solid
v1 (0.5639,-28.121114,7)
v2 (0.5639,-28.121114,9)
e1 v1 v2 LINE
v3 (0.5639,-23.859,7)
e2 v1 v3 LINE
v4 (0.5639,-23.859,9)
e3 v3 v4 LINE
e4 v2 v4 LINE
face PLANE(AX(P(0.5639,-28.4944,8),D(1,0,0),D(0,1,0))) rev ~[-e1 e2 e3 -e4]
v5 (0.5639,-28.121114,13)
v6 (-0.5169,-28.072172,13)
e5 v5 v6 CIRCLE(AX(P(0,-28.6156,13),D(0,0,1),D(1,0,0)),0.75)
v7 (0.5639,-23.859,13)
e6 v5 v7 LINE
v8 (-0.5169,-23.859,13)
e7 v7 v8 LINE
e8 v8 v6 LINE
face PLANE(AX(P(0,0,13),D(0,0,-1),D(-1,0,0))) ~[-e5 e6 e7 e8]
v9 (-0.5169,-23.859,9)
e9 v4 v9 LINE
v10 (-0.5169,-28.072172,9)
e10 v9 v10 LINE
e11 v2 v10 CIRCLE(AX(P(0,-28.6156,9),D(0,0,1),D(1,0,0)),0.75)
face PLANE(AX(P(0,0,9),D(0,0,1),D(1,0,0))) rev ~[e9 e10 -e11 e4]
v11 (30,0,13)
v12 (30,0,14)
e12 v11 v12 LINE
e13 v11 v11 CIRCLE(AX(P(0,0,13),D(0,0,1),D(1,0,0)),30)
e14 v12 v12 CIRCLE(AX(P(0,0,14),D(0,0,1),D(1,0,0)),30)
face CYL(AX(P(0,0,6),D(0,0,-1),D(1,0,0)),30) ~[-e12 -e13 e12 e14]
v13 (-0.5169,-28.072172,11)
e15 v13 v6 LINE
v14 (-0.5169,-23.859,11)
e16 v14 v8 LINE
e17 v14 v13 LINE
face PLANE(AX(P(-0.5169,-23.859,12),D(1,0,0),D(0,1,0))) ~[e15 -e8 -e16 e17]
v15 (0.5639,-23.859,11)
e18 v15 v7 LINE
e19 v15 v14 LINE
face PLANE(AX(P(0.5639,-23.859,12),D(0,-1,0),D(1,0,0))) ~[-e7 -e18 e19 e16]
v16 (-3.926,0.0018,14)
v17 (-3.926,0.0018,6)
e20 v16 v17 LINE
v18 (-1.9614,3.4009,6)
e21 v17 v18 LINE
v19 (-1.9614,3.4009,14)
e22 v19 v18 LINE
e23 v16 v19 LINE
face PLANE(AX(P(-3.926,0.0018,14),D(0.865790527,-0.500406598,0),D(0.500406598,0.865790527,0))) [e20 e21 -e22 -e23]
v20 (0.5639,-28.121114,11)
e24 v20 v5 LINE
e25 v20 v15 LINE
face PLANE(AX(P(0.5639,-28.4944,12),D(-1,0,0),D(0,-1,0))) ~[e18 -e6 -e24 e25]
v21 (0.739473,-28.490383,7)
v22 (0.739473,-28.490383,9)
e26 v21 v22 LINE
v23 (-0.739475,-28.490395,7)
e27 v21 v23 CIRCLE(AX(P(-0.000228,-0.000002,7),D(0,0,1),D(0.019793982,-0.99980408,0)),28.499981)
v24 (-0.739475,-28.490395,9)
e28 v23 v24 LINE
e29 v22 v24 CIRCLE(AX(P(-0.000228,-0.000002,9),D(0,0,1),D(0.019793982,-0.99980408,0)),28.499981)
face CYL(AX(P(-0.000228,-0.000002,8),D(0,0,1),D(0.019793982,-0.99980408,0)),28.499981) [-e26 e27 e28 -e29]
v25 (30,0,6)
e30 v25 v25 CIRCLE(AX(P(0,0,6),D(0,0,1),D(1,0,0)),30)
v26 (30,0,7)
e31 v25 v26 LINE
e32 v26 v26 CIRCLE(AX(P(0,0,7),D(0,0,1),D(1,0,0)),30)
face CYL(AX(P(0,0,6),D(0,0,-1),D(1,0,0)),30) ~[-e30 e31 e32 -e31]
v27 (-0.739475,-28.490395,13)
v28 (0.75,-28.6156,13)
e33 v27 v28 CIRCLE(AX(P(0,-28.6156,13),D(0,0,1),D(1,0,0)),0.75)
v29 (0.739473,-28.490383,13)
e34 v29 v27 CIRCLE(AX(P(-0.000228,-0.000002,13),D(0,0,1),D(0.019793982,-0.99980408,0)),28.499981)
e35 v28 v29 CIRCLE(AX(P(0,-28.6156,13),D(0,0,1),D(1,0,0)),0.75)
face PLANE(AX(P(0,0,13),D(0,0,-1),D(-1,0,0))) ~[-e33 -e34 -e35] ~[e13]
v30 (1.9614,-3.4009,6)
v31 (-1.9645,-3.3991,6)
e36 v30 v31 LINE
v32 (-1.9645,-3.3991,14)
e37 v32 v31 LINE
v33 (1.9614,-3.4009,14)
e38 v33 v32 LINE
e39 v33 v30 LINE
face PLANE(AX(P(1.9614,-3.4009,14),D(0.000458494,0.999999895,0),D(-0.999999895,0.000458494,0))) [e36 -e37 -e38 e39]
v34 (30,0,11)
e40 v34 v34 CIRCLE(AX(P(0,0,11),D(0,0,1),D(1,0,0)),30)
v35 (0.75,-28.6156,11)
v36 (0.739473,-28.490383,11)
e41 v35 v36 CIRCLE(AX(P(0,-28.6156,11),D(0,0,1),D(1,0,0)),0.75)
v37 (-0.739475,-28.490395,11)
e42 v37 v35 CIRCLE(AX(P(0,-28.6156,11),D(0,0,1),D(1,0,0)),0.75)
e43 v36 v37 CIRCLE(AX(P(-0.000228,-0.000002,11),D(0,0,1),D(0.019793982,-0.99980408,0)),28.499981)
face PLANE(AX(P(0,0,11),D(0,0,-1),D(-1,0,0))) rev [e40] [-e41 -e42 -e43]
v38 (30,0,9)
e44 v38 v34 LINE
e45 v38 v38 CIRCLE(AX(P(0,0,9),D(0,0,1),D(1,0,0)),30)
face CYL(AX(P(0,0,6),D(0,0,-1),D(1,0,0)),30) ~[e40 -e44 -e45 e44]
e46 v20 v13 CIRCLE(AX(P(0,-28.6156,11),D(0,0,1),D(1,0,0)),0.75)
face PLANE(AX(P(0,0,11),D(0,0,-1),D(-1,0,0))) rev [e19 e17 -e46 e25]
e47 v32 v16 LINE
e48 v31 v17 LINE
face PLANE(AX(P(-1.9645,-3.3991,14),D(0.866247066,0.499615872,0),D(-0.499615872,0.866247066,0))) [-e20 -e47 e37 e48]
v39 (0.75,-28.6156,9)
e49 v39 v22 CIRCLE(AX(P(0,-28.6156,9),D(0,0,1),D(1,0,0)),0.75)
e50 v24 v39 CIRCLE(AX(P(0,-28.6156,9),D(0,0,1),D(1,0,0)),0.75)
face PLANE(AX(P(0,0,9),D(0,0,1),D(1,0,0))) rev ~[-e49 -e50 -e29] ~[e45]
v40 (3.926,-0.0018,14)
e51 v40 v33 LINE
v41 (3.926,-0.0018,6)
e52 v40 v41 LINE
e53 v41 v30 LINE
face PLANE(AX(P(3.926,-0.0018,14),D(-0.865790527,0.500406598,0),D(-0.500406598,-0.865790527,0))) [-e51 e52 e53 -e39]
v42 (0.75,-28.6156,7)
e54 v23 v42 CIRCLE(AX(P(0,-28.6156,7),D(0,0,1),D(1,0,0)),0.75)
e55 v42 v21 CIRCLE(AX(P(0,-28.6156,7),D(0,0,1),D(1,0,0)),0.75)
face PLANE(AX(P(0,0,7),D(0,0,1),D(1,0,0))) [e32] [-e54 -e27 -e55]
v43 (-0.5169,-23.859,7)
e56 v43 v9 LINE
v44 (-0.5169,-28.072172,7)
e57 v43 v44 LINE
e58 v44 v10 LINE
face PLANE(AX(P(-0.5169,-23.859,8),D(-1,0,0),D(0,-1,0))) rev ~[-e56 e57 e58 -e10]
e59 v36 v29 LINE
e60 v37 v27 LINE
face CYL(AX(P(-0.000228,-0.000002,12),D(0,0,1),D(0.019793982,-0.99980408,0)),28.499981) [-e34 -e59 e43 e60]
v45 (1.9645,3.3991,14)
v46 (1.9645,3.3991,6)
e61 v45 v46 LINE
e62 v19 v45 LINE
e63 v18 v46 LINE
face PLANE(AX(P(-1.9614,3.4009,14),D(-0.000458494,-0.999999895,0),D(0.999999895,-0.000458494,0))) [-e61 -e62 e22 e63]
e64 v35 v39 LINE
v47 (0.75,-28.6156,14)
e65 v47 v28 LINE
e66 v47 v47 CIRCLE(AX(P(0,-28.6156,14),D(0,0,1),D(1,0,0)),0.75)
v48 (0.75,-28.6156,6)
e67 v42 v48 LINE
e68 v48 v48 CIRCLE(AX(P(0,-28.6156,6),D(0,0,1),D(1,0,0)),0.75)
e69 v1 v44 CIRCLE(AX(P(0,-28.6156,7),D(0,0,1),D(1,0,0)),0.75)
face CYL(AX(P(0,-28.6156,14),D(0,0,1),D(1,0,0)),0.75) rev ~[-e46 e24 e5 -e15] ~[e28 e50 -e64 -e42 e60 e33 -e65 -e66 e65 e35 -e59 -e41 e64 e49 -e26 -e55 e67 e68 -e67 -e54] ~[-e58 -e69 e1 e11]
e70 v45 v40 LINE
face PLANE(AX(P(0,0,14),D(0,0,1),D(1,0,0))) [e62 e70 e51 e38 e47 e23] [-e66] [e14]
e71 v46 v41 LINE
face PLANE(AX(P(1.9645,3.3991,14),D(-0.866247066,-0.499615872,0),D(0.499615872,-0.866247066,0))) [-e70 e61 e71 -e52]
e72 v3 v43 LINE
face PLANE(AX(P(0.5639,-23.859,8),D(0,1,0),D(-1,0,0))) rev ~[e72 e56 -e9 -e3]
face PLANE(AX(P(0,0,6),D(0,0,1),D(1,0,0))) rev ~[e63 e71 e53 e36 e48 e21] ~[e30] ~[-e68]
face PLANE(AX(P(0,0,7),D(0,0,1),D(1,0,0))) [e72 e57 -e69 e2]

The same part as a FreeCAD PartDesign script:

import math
import FreeCAD as App
import Part
import Sketcher

V = App.Vector

doc = App.newDocument("Part")
body = doc.addObject("PartDesign::Body", "Body")

# Sketch on XY plane
sketch1 = body.newObject("Sketcher::SketchObject", "Sketch")
sketch1.AttachmentSupport = (doc.getObject("XY_Plane"), [""])
sketch1.MapMode = "FlatFace"
sketch1.addGeometry(Part.Circle(V(0, 0, 0), V(0, 0, 1), 4.5), False)
sketch1.addConstraint([
    Sketcher.Constraint("Coincident", 0, 3, -1, 1),
    Sketcher.Constraint("Diameter", 0, 8.9),
])
pad1 = body.newObject("PartDesign::Pad", "Pad")
pad1.Profile = sketch1
pad1.Length = 6

# Sketch on XY plane
sketch2 = body.newObject("Sketcher::SketchObject", "Sketch001")
sketch2.AttachmentSupport = (doc.getObject("XY_Plane"), [""])
sketch2.MapMode = "FlatFace"
sketch2.AttachmentOffset = App.Placement(V(0, 0, 6), App.Rotation())
sketch2.addGeometry(Part.Circle(V(0, 0, 0), V(0, 0, 1), 30), False)
sketch2.addConstraint([
    Sketcher.Constraint("Coincident", 0, 3, -1, 1),
    Sketcher.Constraint("Diameter", 0, 60.0),
])
pad2 = body.newObject("PartDesign::Pad", "Pad001")
pad2.Profile = sketch2
pad2.Length = 8

# Sketch on XY plane
sketch3 = body.newObject("Sketcher::SketchObject", "Sketch002")
sketch3.AttachmentSupport = (doc.getObject("XY_Plane"), [""])
sketch3.MapMode = "FlatFace"
sketch3.AttachmentOffset = App.Placement(V(0, 0, 8), App.Rotation())
sketch3.addGeometry([
    Part.Circle(V(0, 0, 0), V(0, 0, 1), 30),  # 0
    Part.ArcOfCircle(Part.Circle(V(0, 0, 0), V(0, 0, 1), 28.5), math.radians(-89), math.radians(269)),  # 1
    Part.LineSegment(V(0.6, -28.5, 0), V(0.6, -23.9, 0)),  # 2
    Part.LineSegment(V(0.6, -23.9, 0), V(-0.5, -23.9, 0)),  # 3
    Part.LineSegment(V(-0.5, -23.9, 0), V(-0.5, -28.5, 0)),  # 4
], False)
sketch3.addConstraint([
    Sketcher.Constraint("Coincident", 1, 1, 2, 1),
    Sketcher.Constraint("Coincident", 2, 2, 3, 1),
    Sketcher.Constraint("Coincident", 3, 2, 4, 1),
    Sketcher.Constraint("Coincident", 4, 2, 1, 2),
    Sketcher.Constraint("Vertical", 2),
    Sketcher.Constraint("Horizontal", 3),
    Sketcher.Constraint("Vertical", 4),
    Sketcher.Constraint("Coincident", 0, 3, -1, 1),
    Sketcher.Constraint("Coincident", 1, 3, -1, 1),
    Sketcher.Constraint("Diameter", 0, 60.0),
    Sketcher.Constraint("Radius", 1, 28.5),
    Sketcher.Constraint("DistanceX", 3, 2, 3, 1, 1.0808),
    Sketcher.Constraint("DistanceY", 2, 1, 2, 2, 4.6354),
    Sketcher.Constraint("DistanceY", 4, 2, 4, 1, 4.6363),
])
pocket1 = body.newObject("PartDesign::Pocket", "Pocket")
pocket1.Profile = sketch3
pocket1.Length = 2
pocket1.Midplane = True
doc.recompute()

datumplane = body.newObject("PartDesign::Plane", "DatumPlane")
datumplane.AttachmentSupport = (doc.getObject("XY_Plane"), [""])
datumplane.MapMode = "FlatFace"
datumplane.AttachmentOffset = App.Placement(V(0, 0, 10), App.Rotation())
mirrored = body.newObject("PartDesign::Mirrored", "Mirrored")
mirrored.Originals = [pocket1]
mirrored.MirrorPlane = (datumplane, [""])
body.Tip = mirrored

# Sketch on XY plane
sketch4 = body.newObject("Sketcher::SketchObject", "Sketch003")
sketch4.AttachmentSupport = (doc.getObject("XY_Plane"), [""])
sketch4.MapMode = "FlatFace"
sketch4.addGeometry(Part.Circle(V(0, 0, 0), V(0, 0, 1), 4.5), False)
sketch4.addConstraint([
    Sketcher.Constraint("Coincident", 0, 3, -1, 1),
    Sketcher.Constraint("Diameter", 0, 8.9),
])
pocket2 = body.newObject("PartDesign::Pocket", "Pocket001")
pocket2.Profile = sketch4
pocket2.Length = 6
pocket2.Reversed = True

# Sketch on XY plane
sketch5 = body.newObject("Sketcher::SketchObject", "Sketch004")
sketch5.AttachmentSupport = (doc.getObject("XY_Plane"), [""])
sketch5.MapMode = "FlatFace"
sketch5.AttachmentOffset = App.Placement(V(0, 0, 14), App.Rotation())
sketch5.addGeometry(Part.Circle(V(0, -28.6, 0), V(0, 0, 1), 0.8), False)
sketch5.addConstraint([
    Sketcher.Constraint("PointOnObject", 0, 3, -2),
    Sketcher.Constraint("Diameter", 0, 1.5),
    Sketcher.Constraint("DistanceY", 0, 3, -1, 1, 28.6156),
])
pocket3 = body.newObject("PartDesign::Pocket", "Pocket002")
pocket3.Profile = sketch5
pocket3.Length = 10

# Sketch on XY plane
sketch6 = body.newObject("Sketcher::SketchObject", "Sketch005")
sketch6.AttachmentSupport = (doc.getObject("XY_Plane"), [""])
sketch6.MapMode = "FlatFace"
sketch6.AttachmentOffset = App.Placement(V(0, 0, 14), App.Rotation())
sketch6.addGeometry([
    Part.LineSegment(V(-2, -3.4, 0), V(2, -3.4, 0)),  # 0
    Part.LineSegment(V(2, -3.4, 0), V(3.9, 0, 0)),  # 1
    Part.LineSegment(V(3.9, 0, 0), V(2, 3.4, 0)),  # 2
    Part.LineSegment(V(2, 3.4, 0), V(-2, 3.4, 0)),  # 3
    Part.LineSegment(V(-2, 3.4, 0), V(-3.9, 0, 0)),  # 4
    Part.LineSegment(V(-3.9, 0, 0), V(-2, -3.4, 0)),  # 5
], False)
sketch6.addConstraint([
    Sketcher.Constraint("Coincident", 0, 2, 1, 1),
    Sketcher.Constraint("Coincident", 1, 2, 2, 1),
    Sketcher.Constraint("Coincident", 2, 2, 3, 1),
    Sketcher.Constraint("Coincident", 3, 2, 4, 1),
    Sketcher.Constraint("Coincident", 4, 2, 5, 1),
    Sketcher.Constraint("Coincident", 5, 2, 0, 1),
    Sketcher.Constraint("Symmetric", 0, 2, 3, 2, -1, 1),
    Sketcher.Constraint("Symmetric", 1, 2, 4, 2, -1, 1),
    Sketcher.Constraint("Symmetric", 2, 2, 5, 2, -1, 1),
    Sketcher.Constraint("Equal", 0, 1),
    Sketcher.Constraint("Equal", 1, 2),
    Sketcher.Constraint("DistanceY", 0, 2, 2, 2, 6.8),
    Sketcher.Constraint("Distance", 0, 3.926),
    Sketcher.Constraint("DistanceY", 0, 2, -1, 1, 3.401),
    Sketcher.Constraint("DistanceY", 0, 2, 1, 2, 3.399),
])
pocket4 = body.newObject("PartDesign::Pocket", "Pocket003")
pocket4.Profile = sketch6
pocket4.Length = 10

doc.recompute()
